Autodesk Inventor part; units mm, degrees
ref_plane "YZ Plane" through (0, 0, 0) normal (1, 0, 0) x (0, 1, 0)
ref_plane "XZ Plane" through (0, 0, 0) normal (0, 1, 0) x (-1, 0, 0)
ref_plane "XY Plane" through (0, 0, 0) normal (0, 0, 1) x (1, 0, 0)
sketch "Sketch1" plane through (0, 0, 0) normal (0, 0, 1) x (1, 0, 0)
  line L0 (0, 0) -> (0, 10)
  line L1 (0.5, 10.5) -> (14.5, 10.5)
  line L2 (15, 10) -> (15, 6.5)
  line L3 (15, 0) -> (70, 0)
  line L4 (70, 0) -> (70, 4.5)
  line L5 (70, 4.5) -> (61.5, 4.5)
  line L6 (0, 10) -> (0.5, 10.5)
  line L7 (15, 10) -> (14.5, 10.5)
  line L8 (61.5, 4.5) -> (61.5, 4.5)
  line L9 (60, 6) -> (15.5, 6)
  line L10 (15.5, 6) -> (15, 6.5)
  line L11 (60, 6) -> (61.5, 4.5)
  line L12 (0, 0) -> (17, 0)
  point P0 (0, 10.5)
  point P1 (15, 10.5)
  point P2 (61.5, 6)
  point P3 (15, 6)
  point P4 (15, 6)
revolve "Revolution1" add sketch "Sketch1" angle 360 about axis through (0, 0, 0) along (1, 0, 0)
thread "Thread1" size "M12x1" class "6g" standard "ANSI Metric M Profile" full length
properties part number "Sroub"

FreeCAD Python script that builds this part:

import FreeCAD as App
import Part
import Sketcher
Q = App.Units.Quantity

doc = App.newDocument("Part")
body = doc.addObject("PartDesign::Body", "Body")

sketch1 = body.newObject("Sketcher::SketchObject", "Sketch")
sketch1.AttachmentSupport = (doc.getObject("XY_Plane"), [""])
sketch1.MapMode = "FlatFace"
sketch1.addGeometry(Part.LineSegment(App.Vector(0, 10, 0), App.Vector(0, 0, 0)), False)
sketch1.addGeometry(Part.LineSegment(App.Vector(0, 0, 0), App.Vector(70, 0, 0)), False)
sketch1.addGeometry(Part.LineSegment(App.Vector(70, 0, 0), App.Vector(70, 4.5, 0)), False)
sketch1.addGeometry(Part.LineSegment(App.Vector(70, 4.5, 0), App.Vector(61.5, 4.5, 0)), False)
sketch1.addGeometry(Part.LineSegment(App.Vector(61.5, 4.5, 0), App.Vector(60, 6, 0)), False)
sketch1.addGeometry(Part.LineSegment(App.Vector(60, 6, 0), App.Vector(15.5, 6, 0)), False)
sketch1.addGeometry(Part.LineSegment(App.Vector(15.5, 6, 0), App.Vector(15, 6.5, 0)), False)
sketch1.addGeometry(Part.LineSegment(App.Vector(15, 6.5, 0), App.Vector(15, 10, 0)), False)
sketch1.addGeometry(Part.LineSegment(App.Vector(15, 10, 0), App.Vector(14.5, 10.5, 0)), False)
sketch1.addGeometry(Part.LineSegment(App.Vector(14.5, 10.5, 0), App.Vector(0.5, 10.5, 0)), False)
sketch1.addGeometry(Part.LineSegment(App.Vector(0.5, 10.5, 0), App.Vector(0, 10, 0)), False)
sketch1.addConstraint(Sketcher.Constraint("Coincident", 0, 2, 1, 1))
sketch1.addConstraint(Sketcher.Constraint("Coincident", 1, 2, 2, 1))
sketch1.addConstraint(Sketcher.Constraint("Coincident", 2, 2, 3, 1))
sketch1.addConstraint(Sketcher.Constraint("Coincident", 3, 2, 4, 1))
sketch1.addConstraint(Sketcher.Constraint("Coincident", 4, 2, 5, 1))
sketch1.addConstraint(Sketcher.Constraint("Coincident", 5, 2, 6, 1))
sketch1.addConstraint(Sketcher.Constraint("Coincident", 6, 2, 7, 1))
sketch1.addConstraint(Sketcher.Constraint("Coincident", 7, 2, 8, 1))
sketch1.addConstraint(Sketcher.Constraint("Coincident", 8, 2, 9, 1))
sketch1.addConstraint(Sketcher.Constraint("Coincident", 9, 2, 10, 1))
sketch1.addConstraint(Sketcher.Constraint("Coincident", 10, 2, 0, 1))
sketch1.addConstraint(Sketcher.Constraint("Vertical", 0))
sketch1.addConstraint(Sketcher.Constraint("Horizontal", 1))
sketch1.addConstraint(Sketcher.Constraint("Vertical", 2))
sketch1.addConstraint(Sketcher.Constraint("Horizontal", 3))
sketch1.addConstraint(Sketcher.Constraint("Horizontal", 5))
sketch1.addConstraint(Sketcher.Constraint("Vertical", 7))
sketch1.addConstraint(Sketcher.Constraint("Horizontal", 9))
sketch1.addConstraint(Sketcher.Constraint("Coincident", 0, 2, -1, 1))
sketch1.addConstraint(Sketcher.Constraint("Parallel", 4, 6))
sketch1.addConstraint(Sketcher.Constraint("Parallel", 6, 8))
sketch1.addConstraint(Sketcher.Constraint("Perpendicular", 8, 10))
sketch1.addConstraint(Sketcher.Constraint("Horizontal", 7, 2, 10, 2))
sketch1.addConstraint(Sketcher.Constraint("Equal", 6, 8))
sketch1.addConstraint(Sketcher.Constraint("Equal", 8, 10))
sketch1.addConstraint(Sketcher.Constraint("DistanceX", 1, 1, 1, 2, Q("70 mm")))
sketch1.addConstraint(Sketcher.Constraint("DistanceX", 9, 2, 9, 1, Q("14 mm")))
sketch1.addConstraint(Sketcher.Constraint("DistanceY", 0, 2, 0, 1, Q("10 mm")))
sketch1.addConstraint(Sketcher.Constraint("DistanceX", 3, 2, 3, 1, Q("8.5 mm")))
sketch1.addConstraint(Sketcher.Constraint("DistanceX", 5, 2, 5, 1, Q("44.5 mm")))
sketch1.addConstraint(Sketcher.Constraint("DistanceY", 2, 1, 2, 2, Q("4.5 mm")))
sketch1.addConstraint(Sketcher.Constraint("DistanceY", 7, 1, 7, 2, Q("3.5 mm")))
revolution = body.newObject("PartDesign::Revolution", "Revolution")
revolution.Profile = sketch1
revolution.ReferenceAxis = (sketch1, ["H_Axis"])
revolution.Angle = 360

doc.recompute()
